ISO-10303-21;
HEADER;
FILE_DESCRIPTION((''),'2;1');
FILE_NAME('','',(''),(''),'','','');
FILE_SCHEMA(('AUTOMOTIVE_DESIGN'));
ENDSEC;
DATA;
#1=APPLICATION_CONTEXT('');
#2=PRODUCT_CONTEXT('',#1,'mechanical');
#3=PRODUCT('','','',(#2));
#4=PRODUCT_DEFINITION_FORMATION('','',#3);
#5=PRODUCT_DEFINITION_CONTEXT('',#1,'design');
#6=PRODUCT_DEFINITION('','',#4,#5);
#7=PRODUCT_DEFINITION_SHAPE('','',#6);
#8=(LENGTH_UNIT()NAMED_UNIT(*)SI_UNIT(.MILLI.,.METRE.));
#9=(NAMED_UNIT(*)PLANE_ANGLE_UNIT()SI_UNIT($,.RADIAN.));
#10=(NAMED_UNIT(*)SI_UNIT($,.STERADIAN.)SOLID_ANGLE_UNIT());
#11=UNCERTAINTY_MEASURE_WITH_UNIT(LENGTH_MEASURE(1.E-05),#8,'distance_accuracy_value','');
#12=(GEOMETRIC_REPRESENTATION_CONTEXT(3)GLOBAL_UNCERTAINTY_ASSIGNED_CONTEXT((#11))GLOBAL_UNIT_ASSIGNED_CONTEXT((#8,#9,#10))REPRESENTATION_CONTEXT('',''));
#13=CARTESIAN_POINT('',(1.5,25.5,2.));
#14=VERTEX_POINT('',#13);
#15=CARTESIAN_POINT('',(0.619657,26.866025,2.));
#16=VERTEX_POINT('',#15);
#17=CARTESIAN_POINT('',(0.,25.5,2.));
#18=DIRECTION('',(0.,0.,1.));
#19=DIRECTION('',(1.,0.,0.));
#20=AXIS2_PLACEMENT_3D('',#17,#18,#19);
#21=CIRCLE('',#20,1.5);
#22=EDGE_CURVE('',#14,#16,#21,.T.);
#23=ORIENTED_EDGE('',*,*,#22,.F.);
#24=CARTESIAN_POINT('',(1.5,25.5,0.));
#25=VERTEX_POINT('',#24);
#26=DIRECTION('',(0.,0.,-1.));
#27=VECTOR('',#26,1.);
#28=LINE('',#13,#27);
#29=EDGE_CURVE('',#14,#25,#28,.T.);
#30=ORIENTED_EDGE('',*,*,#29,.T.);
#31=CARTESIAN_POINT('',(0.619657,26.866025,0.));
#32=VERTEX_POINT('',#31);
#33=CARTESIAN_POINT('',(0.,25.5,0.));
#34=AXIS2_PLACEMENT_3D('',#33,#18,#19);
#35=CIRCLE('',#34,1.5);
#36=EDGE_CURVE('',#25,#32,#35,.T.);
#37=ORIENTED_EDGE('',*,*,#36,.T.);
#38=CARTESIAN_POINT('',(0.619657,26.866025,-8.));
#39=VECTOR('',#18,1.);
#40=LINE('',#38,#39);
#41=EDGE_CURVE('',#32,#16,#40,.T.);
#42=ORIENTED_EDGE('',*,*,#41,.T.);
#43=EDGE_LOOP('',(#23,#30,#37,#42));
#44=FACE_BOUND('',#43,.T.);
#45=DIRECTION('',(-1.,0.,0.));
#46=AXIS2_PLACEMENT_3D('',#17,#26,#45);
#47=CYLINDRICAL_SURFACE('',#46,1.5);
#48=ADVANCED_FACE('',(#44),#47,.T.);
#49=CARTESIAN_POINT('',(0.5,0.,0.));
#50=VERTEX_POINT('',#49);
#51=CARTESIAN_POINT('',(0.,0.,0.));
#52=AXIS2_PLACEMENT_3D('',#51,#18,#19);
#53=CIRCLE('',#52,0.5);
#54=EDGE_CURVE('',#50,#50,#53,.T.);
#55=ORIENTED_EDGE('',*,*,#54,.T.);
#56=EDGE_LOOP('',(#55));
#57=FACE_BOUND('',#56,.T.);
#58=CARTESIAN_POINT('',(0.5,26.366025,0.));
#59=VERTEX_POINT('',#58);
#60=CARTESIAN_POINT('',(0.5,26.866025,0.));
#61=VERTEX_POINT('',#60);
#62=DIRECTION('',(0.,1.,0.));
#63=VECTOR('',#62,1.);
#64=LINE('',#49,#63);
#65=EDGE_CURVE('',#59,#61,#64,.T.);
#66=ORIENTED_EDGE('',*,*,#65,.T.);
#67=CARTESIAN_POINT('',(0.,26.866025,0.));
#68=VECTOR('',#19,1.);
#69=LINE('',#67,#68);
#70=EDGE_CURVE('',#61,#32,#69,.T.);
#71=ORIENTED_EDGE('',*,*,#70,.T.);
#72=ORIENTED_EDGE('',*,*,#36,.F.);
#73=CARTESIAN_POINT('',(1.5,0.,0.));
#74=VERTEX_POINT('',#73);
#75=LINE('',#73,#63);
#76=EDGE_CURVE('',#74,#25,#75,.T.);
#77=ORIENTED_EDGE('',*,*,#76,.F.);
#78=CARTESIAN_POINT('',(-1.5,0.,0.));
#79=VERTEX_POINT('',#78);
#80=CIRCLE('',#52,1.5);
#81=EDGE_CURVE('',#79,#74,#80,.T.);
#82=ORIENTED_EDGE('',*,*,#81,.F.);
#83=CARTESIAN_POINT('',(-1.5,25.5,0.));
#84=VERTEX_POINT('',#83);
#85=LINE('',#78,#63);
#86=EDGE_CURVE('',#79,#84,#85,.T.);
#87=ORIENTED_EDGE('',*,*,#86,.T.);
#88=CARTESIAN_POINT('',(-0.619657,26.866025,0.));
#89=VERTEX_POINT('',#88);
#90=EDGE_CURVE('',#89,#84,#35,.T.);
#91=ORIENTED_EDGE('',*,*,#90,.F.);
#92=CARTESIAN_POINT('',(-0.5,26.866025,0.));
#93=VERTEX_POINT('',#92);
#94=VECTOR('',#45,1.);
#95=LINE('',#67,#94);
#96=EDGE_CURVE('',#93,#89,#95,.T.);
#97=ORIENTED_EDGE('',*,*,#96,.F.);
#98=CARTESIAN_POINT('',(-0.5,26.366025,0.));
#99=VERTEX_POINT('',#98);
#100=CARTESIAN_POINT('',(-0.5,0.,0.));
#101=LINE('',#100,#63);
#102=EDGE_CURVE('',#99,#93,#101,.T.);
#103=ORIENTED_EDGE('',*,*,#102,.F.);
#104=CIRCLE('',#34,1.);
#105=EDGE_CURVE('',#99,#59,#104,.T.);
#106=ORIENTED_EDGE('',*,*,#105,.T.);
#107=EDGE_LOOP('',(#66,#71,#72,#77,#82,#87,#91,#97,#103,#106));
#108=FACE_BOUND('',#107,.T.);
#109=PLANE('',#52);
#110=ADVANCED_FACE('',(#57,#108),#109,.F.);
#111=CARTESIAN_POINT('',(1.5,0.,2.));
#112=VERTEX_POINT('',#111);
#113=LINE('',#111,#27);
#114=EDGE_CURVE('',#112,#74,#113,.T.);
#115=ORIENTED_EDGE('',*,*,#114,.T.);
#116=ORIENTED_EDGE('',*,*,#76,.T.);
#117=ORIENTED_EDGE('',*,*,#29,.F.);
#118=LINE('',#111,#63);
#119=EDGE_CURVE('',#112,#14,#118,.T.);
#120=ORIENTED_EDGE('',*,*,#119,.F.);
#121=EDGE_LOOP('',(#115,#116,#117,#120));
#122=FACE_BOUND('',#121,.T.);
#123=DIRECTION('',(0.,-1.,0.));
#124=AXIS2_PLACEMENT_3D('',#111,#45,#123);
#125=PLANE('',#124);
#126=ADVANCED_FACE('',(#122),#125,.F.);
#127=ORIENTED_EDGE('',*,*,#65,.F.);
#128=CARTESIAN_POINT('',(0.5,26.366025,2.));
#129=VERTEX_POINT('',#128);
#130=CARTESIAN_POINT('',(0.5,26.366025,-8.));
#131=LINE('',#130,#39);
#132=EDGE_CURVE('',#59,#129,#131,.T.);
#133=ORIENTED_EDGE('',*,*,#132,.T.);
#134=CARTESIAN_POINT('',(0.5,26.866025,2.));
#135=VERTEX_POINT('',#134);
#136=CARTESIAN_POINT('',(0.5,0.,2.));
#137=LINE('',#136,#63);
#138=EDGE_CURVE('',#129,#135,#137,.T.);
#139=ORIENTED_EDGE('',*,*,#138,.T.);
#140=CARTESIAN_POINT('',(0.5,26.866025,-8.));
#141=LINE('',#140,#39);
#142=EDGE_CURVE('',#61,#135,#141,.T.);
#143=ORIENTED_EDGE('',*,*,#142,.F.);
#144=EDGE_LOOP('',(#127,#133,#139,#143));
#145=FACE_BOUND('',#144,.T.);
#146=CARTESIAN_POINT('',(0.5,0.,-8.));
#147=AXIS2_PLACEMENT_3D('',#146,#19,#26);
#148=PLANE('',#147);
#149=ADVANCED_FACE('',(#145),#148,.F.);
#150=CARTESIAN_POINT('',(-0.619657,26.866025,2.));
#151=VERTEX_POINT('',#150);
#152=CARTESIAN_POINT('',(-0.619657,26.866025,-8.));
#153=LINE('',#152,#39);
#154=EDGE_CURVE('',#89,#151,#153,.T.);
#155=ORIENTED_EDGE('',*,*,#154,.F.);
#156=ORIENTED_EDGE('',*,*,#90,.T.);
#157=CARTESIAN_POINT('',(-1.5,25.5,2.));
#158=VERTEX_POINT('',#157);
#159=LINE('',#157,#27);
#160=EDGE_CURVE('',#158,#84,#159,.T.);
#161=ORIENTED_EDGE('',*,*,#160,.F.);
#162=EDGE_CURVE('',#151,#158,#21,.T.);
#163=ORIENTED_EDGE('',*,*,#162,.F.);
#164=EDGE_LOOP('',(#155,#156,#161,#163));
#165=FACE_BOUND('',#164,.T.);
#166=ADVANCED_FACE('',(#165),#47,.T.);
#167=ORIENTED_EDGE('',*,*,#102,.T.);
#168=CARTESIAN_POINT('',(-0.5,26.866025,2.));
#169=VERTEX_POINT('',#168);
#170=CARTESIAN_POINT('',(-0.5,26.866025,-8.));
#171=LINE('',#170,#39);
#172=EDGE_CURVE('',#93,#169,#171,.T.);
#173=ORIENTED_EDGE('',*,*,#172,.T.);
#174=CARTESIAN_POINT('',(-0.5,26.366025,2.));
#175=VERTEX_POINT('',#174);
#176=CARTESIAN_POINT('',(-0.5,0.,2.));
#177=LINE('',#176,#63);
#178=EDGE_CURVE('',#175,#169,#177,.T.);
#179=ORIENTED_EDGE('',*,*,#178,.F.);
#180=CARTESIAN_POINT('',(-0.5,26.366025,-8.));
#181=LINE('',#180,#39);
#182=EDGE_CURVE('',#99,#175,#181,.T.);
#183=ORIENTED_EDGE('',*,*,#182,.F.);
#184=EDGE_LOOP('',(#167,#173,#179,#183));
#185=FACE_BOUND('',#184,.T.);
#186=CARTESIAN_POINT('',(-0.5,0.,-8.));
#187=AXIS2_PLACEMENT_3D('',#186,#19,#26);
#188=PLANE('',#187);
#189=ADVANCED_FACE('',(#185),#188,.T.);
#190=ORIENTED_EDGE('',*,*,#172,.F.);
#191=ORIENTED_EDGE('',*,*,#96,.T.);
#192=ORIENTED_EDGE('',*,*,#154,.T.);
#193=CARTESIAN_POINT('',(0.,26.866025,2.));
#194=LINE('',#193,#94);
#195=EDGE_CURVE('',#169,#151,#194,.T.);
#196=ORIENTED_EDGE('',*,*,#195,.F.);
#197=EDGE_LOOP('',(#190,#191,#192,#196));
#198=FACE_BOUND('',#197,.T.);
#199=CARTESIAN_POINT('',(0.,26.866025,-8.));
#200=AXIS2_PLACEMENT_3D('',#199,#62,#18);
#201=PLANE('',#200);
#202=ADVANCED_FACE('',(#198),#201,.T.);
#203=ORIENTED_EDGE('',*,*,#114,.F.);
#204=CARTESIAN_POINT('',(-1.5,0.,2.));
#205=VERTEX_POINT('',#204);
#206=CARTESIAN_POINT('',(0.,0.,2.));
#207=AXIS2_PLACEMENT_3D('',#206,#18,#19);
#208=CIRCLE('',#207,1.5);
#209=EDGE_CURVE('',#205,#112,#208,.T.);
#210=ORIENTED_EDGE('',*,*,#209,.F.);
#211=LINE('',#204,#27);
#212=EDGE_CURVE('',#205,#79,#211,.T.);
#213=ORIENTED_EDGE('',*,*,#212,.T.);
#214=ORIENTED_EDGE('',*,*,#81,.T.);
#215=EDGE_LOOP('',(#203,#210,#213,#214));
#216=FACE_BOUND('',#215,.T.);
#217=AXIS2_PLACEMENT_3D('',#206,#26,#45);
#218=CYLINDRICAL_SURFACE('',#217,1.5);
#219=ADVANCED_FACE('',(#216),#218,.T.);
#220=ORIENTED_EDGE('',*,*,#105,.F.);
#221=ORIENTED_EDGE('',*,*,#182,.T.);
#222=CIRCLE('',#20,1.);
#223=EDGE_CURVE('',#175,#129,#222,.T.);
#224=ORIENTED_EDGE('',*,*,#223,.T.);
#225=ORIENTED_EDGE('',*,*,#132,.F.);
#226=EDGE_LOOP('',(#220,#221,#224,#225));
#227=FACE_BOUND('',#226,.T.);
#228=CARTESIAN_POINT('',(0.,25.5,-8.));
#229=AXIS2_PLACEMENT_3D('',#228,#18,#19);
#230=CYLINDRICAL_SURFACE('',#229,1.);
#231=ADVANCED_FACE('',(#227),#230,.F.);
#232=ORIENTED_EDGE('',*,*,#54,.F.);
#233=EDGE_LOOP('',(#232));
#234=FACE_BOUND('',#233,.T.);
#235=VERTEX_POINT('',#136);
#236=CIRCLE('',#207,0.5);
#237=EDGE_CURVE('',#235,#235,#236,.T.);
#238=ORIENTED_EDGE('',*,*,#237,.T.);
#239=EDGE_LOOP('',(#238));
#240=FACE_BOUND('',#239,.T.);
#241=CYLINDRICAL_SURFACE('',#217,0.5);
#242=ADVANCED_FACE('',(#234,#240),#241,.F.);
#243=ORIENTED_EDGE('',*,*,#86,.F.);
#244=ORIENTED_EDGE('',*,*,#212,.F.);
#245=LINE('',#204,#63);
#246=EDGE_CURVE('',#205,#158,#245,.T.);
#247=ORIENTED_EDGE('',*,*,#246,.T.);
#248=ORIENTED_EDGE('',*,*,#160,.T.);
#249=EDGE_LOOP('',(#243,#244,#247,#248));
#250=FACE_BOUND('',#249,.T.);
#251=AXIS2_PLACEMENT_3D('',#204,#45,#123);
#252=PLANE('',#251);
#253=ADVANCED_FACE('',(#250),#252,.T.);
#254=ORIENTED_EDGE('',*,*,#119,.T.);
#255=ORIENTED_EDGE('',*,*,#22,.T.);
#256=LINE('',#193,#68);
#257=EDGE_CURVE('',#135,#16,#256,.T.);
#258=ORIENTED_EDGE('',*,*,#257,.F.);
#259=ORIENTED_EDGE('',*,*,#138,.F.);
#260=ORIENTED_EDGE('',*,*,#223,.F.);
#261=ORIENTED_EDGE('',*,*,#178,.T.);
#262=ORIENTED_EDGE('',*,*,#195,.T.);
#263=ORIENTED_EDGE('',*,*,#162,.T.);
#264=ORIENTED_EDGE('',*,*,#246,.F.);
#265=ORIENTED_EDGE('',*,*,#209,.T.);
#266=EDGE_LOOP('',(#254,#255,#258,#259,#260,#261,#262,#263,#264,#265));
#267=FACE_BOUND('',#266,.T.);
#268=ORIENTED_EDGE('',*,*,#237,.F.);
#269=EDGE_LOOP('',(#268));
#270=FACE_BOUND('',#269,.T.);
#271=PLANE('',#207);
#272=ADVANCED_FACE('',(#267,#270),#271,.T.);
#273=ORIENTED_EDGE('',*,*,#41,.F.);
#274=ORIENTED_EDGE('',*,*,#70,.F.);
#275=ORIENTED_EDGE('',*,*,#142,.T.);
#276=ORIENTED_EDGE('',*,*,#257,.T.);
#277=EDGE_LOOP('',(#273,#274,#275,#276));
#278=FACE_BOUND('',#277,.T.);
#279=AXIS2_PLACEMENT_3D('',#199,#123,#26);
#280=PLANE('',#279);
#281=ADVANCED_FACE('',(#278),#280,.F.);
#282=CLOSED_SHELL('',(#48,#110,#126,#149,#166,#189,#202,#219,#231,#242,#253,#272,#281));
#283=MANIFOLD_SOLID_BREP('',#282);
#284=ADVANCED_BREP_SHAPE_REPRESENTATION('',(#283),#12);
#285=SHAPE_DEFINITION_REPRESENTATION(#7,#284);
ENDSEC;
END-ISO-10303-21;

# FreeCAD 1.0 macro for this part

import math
import FreeCAD as App
import Part
import Sketcher
from FreeCAD import Vector

doc = App.newDocument("Part")
body = doc.addObject("PartDesign::Body", "Body")

sketch1 = doc.addObject("Sketcher::SketchObject", "Sketch")
body.addObject(sketch1)
sketch1.AttachmentSupport = (doc.XY_Plane, [""])
sketch1.MapMode = "FlatFace"
sketch1.addGeometry(Part.LineSegment(Vector(-1.5, 25.5, 0), Vector(-1.5, 0, 0)), False)
sketch1.addGeometry(Part.ArcOfCircle(Part.Circle(Vector(0, 0, 0), Vector(0, 0, 1), 1.5), math.radians(180), math.radians(360)), False)
sketch1.addGeometry(Part.LineSegment(Vector(1.5, 0, 0), Vector(1.5, 25.5, 0)), False)
sketch1.addGeometry(Part.ArcOfCircle(Part.Circle(Vector(0, 25.5, 0), Vector(0, 0, 1), 1.5), math.radians(0), math.radians(180)), False)
sketch1.addGeometry(Part.Circle(Vector(0, 0, 0), Vector(0, 0, 1), 0.5), False)
sketch1.addConstraint(Sketcher.Constraint("Tangent", 0, 2, 1, 1))
sketch1.addConstraint(Sketcher.Constraint("Tangent", 1, 2, 2, 1))
sketch1.addConstraint(Sketcher.Constraint("Tangent", 2, 2, 3, 1))
sketch1.addConstraint(Sketcher.Constraint("Tangent", 3, 2, 0, 1))
sketch1.addConstraint(Sketcher.Constraint("Vertical", 0))
sketch1.addConstraint(Sketcher.Constraint("Vertical", 2))
sketch1.addConstraint(Sketcher.Constraint("Coincident", 1, 3, -1, 1))
sketch1.addConstraint(Sketcher.Constraint("Coincident", 4, 3, -1, 1))
sketch1.addConstraint(Sketcher.Constraint("Diameter", 4, 1.0))
sketch1.addConstraint(Sketcher.Constraint("Radius", 1, 1.5))
sketch1.addConstraint(Sketcher.Constraint("DistanceY", 0, 2, 0, 1, 25.5))
pad1 = doc.addObject("PartDesign::Pad", "Pad")
body.addObject(pad1)
pad1.Profile = sketch1
pad1.Length = 2

sketch2 = doc.addObject("Sketcher::SketchObject", "Sketch001")
body.addObject(sketch2)
sketch2.AttachmentSupport = (doc.XY_Plane, [""])
sketch2.MapMode = "FlatFace"
sketch2.AttachmentOffset = App.Placement(Vector(0, 0, 2), App.Rotation())
sketch2.addGeometry(Part.LineSegment(Vector(-0.5, 26.866025, 0), Vector(-0.5, 26.366025, 0)), False)
sketch2.addGeometry(Part.ArcOfCircle(Part.Circle(Vector(0, 25.5, 0), Vector(0, 0, 1), 1), math.radians(120), math.radians(420)), False)
sketch2.addGeometry(Part.LineSegment(Vector(0.5, 26.366025, 0), Vector(0.5, 26.866025, 0)), False)
sketch2.addGeometry(Part.LineSegment(Vector(0.5, 26.866025, 0), Vector(0.619657, 26.866025, 0)), False)
sketch2.addGeometry(Part.ArcOfCircle(Part.Circle(Vector(0, 25.5, 0), Vector(0, 0, 1), 1.5), math.radians(65.599992), math.radians(114.400008)), False)
sketch2.addGeometry(Part.LineSegment(Vector(-0.619657, 26.866025, 0), Vector(-0.5, 26.866025, 0)), False)
sketch2.addConstraint(Sketcher.Constraint("Coincident", 0, 2, 1, 1))
sketch2.addConstraint(Sketcher.Constraint("Coincident", 1, 2, 2, 1))
sketch2.addConstraint(Sketcher.Constraint("Coincident", 2, 2, 3, 1))
sketch2.addConstraint(Sketcher.Constraint("Coincident", 3, 2, 4, 1))
sketch2.addConstraint(Sketcher.Constraint("Coincident", 4, 2, 5, 1))
sketch2.addConstraint(Sketcher.Constraint("Coincident", 5, 2, 0, 1))
sketch2.addConstraint(Sketcher.Constraint("Vertical", 0))
sketch2.addConstraint(Sketcher.Constraint("Vertical", 2))
sketch2.addConstraint(Sketcher.Constraint("Horizontal", 3))
sketch2.addConstraint(Sketcher.Constraint("Horizontal", 5))
sketch2.addConstraint(Sketcher.Constraint("Coincident", 4, 3, 1, 3))
sketch2.addConstraint(Sketcher.Constraint("Symmetric", 0, 2, 1, 2, -2))
sketch2.addConstraint(Sketcher.Constraint("Horizontal", 3, 2, 4, 2))
sketch2.addConstraint(Sketcher.Constraint("Radius", 1, 1.0))
sketch2.addConstraint(Sketcher.Constraint("Radius", 4, 1.5))
sketch2.addConstraint(Sketcher.Constraint("DistanceY", 0, 2, 0, 1, 0.5))
sketch2.addConstraint(Sketcher.Constraint("DistanceX", 0, 2, 1, 2, 1.0))
sketch2.addConstraint(Sketcher.Constraint("DistanceY", -1, 1, 1, 3, 25.5))
pocket1 = doc.addObject("PartDesign::Pocket", "Pocket")
body.addObject(pocket1)
pocket1.Profile = sketch2
pocket1.Length = 10

doc.recompute()
